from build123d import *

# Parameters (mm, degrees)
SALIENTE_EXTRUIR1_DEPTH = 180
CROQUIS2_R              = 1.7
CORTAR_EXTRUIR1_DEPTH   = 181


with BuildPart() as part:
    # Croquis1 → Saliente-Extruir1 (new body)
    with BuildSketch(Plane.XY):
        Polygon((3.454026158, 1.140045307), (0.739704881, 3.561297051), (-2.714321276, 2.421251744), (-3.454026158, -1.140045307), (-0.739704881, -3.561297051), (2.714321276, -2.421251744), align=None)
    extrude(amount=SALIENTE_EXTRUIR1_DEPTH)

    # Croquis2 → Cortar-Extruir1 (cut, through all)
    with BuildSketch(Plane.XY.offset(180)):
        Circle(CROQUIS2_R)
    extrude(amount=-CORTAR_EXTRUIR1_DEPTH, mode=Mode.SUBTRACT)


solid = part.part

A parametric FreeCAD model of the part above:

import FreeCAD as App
import Part
import Sketcher


def add_polygon(sketch, points):
    """Adds a closed chain of lines whose ends are joined by coincident constraints."""
    first, n = sketch.GeometryCount, len(points)
    for a, b in zip(points, points[1:] + points[:1]):
        sketch.addGeometry(Part.LineSegment(App.Vector(*a, 0), App.Vector(*b, 0)), False)
    for i in range(n):
        sketch.addConstraint(Sketcher.Constraint("Coincident", first + i, 2, first + (i + 1) % n, 1))

doc = App.newDocument("Part")
params = doc.addObject("Spreadsheet::Sheet", "Params")
for row, (alias, value) in enumerate([
    ("pad1_length", "180 mm"),
    ("sketch2_diameter", "3.4 mm"),
], start=1):
    params.set(f"A{row}", alias)
    params.set(f"B{row}", "=" + value)
    params.setAlias(f"B{row}", alias)

body = doc.addObject("PartDesign::Body", "Body")

# Sketch on XY plane
sketch1 = body.newObject("Sketcher::SketchObject", "Sketch")
sketch1.AttachmentSupport = (doc.getObject("XY_Plane"), [""])
sketch1.MapMode = "FlatFace"
add_polygon(sketch1, [(3.454026, 1.140045), (0.739705, 3.561297), (-2.714321, 2.421252), (-3.454026, -1.140045), (-0.739705, -3.561297), (2.714321, -2.421252)])  # lines 0-5
sketch1.addConstraint([
    Sketcher.Constraint("Symmetric", 0, 2, 3, 2, -1, 1),
    Sketcher.Constraint("Symmetric", 1, 2, 4, 2, -1, 1),
    Sketcher.Constraint("Symmetric", 2, 2, 5, 2, -1, 1),
    Sketcher.Constraint("Equal", 0, 1),
    Sketcher.Constraint("Equal", 1, 2),
    Sketcher.Constraint("DistanceX", 1, 2, -1, 1, 2.714321),
    Sketcher.Constraint("DistanceY", -1, 1, 1, 2, 2.421252),
    Sketcher.Constraint("DistanceX", 2, 2, 0, 2, 4.193731),
    Sketcher.Constraint("DistanceX", 2, 2, 3, 2, 2.714321),
])
pad1 = body.newObject("PartDesign::Pad", "Pad")
pad1.Profile = sketch1
pad1.setExpression("Length", "Params.pad1_length")

# Sketch on XY plane
sketch2 = body.newObject("Sketcher::SketchObject", "Sketch001")
sketch2.AttachmentSupport = (doc.getObject("XY_Plane"), [""])
sketch2.MapMode = "FlatFace"
sketch2.AttachmentOffset = App.Placement(App.Vector(0, 0, 180), App.Rotation())
sketch2.addGeometry(Part.Circle(App.Vector(0, 0, 0), App.Vector(0, 0, 1), 1.7), False)
sketch2.addConstraint([
    Sketcher.Constraint("Coincident", 0, 3, -1, 1),
    Sketcher.Constraint("Diameter", 0, 3.4),
])
sketch2.setExpression("Constraints[1]", "Params.sketch2_diameter")
pocket1 = body.newObject("PartDesign::Pocket", "Pocket")
pocket1.Profile = sketch2
pocket1.Type = "ThroughAll"

doc.recompute()
